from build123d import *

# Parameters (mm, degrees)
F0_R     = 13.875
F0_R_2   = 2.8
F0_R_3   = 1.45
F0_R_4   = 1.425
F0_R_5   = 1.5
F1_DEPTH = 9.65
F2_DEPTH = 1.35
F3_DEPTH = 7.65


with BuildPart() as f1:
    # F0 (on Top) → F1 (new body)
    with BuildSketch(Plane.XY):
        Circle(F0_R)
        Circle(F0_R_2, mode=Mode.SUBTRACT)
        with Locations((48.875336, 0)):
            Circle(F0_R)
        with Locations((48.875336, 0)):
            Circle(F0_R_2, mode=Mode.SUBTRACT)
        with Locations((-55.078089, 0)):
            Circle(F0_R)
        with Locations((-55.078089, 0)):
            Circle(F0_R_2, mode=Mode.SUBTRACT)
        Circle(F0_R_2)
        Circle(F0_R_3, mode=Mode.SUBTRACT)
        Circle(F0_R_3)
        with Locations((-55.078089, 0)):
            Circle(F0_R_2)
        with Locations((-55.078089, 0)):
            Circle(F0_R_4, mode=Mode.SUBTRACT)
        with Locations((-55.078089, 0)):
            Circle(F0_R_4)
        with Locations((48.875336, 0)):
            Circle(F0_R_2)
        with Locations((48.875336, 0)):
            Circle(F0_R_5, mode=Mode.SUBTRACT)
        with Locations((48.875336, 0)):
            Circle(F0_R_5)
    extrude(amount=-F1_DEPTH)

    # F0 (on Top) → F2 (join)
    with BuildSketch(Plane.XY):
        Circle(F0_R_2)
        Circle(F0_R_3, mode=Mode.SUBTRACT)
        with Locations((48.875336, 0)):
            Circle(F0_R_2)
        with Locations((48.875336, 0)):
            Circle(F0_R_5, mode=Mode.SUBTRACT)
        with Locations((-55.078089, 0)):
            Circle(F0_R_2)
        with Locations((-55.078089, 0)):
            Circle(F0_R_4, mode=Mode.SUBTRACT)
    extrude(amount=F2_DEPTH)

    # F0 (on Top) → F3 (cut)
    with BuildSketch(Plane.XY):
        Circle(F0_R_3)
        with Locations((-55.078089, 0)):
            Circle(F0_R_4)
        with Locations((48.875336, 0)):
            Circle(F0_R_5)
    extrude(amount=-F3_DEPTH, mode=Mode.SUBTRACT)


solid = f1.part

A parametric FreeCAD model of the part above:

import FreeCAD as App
import Part
import Sketcher

V = App.Vector

doc = App.newDocument("Part")
body = doc.addObject("PartDesign::Body", "Body")
body.AllowCompound = True

# Sketch on XY plane
sketch1 = doc.addObject("Sketcher::SketchObject", "Sketch")
body.addObject(sketch1)
sketch1.AttachmentSupport = (doc.XY_Plane, [""])
sketch1.MapMode = "FlatFace"
sketch1.addGeometry([
    Part.Circle(V(0, 0, 0), V(0, 0, 1), 14),
    Part.Circle(V(49, 0, 0), V(0, 0, 1), 14),
    Part.Circle(V(-55, 0, 0), V(0, 0, 1), 14),
], False)
sketch1.addConstraint([
    Sketcher.Constraint("Coincident", 0, 3, -1, 1),
    Sketcher.Constraint("Equal", 0, 1),
    Sketcher.Constraint("Equal", 1, 2),
    Sketcher.Constraint("PointOnObject", 1, 3, -1),
    Sketcher.Constraint("PointOnObject", 2, 3, -1),
    Sketcher.Constraint("Diameter", 0, 27.75),
    Sketcher.Constraint("DistanceX", 2, 3, -1, 1, 55.078089),
    Sketcher.Constraint("DistanceX", -1, 1, 1, 3, 48.875336),
])
pad1 = doc.addObject("PartDesign::Pad", "Pad")
body.addObject(pad1)
pad1.Profile = sketch1
pad1.Length = 9.65
pad1.Reversed = True

# Sketch on XY plane
sketch2 = doc.addObject("Sketcher::SketchObject", "Sketch001")
body.addObject(sketch2)
sketch2.AttachmentSupport = (doc.XY_Plane, [""])
sketch2.MapMode = "FlatFace"
sketch2.addGeometry([
    Part.Circle(V(0, 0, 0), V(0, 0, 1), 2.8),  # 0
    Part.Circle(V(0, 0, 0), V(0, 0, 1), 1.4),  # 1
    Part.Circle(V(48.9, 0, 0), V(0, 0, 1), 2.8),  # 2
    Part.Circle(V(48.9, 0, 0), V(0, 0, 1), 1.5),  # 3
    Part.Circle(V(-55.1, 0, 0), V(0, 0, 1), 2.8),  # 4
    Part.Circle(V(-55.1, 0, 0), V(0, 0, 1), 1.4),  # 5
], False)
sketch2.addConstraint([
    Sketcher.Constraint("Coincident", 0, 3, -1, 1),
    Sketcher.Constraint("Coincident", 1, 3, -1, 1),
    Sketcher.Constraint("Coincident", 3, 3, 2, 3),
    Sketcher.Constraint("Coincident", 5, 3, 4, 3),
    Sketcher.Constraint("Equal", 0, 2),
    Sketcher.Constraint("Equal", 2, 4),
    Sketcher.Constraint("PointOnObject", 2, 3, -1),
    Sketcher.Constraint("PointOnObject", 4, 3, -1),
    Sketcher.Constraint("Diameter", 3, 3.0),
    Sketcher.Constraint("Diameter", 0, 5.6),
    Sketcher.Constraint("Diameter", 1, 2.9),
    Sketcher.Constraint("Diameter", 5, 2.85),
    Sketcher.Constraint("DistanceX", 4, 3, -1, 1, 55.078089),
    Sketcher.Constraint("DistanceX", -1, 1, 2, 3, 48.875336),
])
pad2 = doc.addObject("PartDesign::Pad", "Pad001")
body.addObject(pad2)
pad2.Profile = sketch2
pad2.Length = 1.35

# Sketch on XY plane
sketch3 = doc.addObject("Sketcher::SketchObject", "Sketch002")
body.addObject(sketch3)
sketch3.AttachmentSupport = (doc.XY_Plane, [""])
sketch3.MapMode = "FlatFace"
sketch3.addGeometry([
    Part.Circle(V(0, 0, 0), V(0, 0, 1), 1.4),
    Part.Circle(V(-55.1, 0, 0), V(0, 0, 1), 1.4),
    Part.Circle(V(48.9, 0, 0), V(0, 0, 1), 1.5),
], False)
sketch3.addConstraint([
    Sketcher.Constraint("Coincident", 0, 3, -1, 1),
    Sketcher.Constraint("PointOnObject", 1, 3, -1),
    Sketcher.Constraint("PointOnObject", 2, 3, -1),
    Sketcher.Constraint("Diameter", 2, 3.0),
    Sketcher.Constraint("Diameter", 0, 2.9),
    Sketcher.Constraint("Diameter", 1, 2.85),
    Sketcher.Constraint("DistanceX", 1, 3, -1, 1, 55.078089),
    Sketcher.Constraint("DistanceX", -1, 1, 2, 3, 48.875336),
])
pocket1 = doc.addObject("PartDesign::Pocket", "Pocket")
body.addObject(pocket1)
pocket1.Profile = sketch3
pocket1.Length = 7.65

doc.recompute()
